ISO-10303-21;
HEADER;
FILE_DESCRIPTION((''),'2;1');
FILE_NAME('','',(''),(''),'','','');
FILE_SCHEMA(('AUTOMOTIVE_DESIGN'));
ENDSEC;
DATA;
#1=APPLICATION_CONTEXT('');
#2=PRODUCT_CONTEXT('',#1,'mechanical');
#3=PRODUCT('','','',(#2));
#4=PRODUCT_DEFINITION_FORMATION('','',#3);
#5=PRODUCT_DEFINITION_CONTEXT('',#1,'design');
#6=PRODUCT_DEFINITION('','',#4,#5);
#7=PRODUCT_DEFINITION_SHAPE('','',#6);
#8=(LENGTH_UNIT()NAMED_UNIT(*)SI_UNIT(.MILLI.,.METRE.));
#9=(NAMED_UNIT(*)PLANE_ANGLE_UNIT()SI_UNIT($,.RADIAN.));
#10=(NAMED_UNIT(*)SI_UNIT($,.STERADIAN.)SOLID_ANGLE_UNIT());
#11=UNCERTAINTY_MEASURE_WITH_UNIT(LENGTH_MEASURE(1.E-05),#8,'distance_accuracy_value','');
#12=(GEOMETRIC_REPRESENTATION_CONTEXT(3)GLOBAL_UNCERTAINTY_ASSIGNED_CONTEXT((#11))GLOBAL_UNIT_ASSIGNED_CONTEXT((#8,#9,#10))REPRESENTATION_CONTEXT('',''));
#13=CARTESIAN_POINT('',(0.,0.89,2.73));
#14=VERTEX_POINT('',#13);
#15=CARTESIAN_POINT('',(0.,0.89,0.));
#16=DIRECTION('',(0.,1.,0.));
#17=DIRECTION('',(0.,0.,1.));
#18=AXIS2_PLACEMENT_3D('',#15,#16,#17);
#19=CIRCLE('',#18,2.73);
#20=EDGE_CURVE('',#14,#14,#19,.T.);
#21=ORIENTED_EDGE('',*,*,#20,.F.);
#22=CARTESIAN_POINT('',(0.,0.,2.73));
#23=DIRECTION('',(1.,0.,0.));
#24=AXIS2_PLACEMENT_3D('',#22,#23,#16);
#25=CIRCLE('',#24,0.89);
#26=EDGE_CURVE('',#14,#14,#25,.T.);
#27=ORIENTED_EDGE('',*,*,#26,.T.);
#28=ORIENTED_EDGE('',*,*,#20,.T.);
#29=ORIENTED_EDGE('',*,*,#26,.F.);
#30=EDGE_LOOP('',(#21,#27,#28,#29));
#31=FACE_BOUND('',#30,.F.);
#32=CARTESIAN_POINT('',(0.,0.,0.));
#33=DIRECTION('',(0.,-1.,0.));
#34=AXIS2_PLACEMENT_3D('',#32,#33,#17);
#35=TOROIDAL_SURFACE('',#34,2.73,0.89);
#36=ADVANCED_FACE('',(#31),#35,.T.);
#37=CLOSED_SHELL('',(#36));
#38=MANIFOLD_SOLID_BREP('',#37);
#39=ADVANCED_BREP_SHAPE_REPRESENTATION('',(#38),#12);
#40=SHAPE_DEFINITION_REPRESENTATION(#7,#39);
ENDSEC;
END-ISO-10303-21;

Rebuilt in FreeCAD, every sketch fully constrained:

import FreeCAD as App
import Part
import Sketcher
from FreeCAD import Vector

doc = App.newDocument("Part")
body = doc.addObject("PartDesign::Body", "Body")

sketch1 = doc.addObject("Sketcher::SketchObject", "Sketch")
body.addObject(sketch1)
sketch1.AttachmentSupport = (doc.YZ_Plane, [""])
sketch1.MapMode = "FlatFace"
sketch1.addGeometry(Part.Circle(Vector(0, 2.7, 0), Vector(0, 0, 1), 0.9), False)
sketch1.addConstraint([
    Sketcher.Constraint("PointOnObject", 0, 3, -2),
    Sketcher.Constraint("Diameter", 0, 1.78),
    Sketcher.Constraint("DistanceY", -1, 1, 0, 3, 2.73),
])
revolution = doc.addObject("PartDesign::Revolution", "Revolution")
body.addObject(revolution)
revolution.Profile = sketch1
revolution.ReferenceAxis = (sketch1, ["H_Axis"])
revolution.Angle = 360

doc.recompute()
